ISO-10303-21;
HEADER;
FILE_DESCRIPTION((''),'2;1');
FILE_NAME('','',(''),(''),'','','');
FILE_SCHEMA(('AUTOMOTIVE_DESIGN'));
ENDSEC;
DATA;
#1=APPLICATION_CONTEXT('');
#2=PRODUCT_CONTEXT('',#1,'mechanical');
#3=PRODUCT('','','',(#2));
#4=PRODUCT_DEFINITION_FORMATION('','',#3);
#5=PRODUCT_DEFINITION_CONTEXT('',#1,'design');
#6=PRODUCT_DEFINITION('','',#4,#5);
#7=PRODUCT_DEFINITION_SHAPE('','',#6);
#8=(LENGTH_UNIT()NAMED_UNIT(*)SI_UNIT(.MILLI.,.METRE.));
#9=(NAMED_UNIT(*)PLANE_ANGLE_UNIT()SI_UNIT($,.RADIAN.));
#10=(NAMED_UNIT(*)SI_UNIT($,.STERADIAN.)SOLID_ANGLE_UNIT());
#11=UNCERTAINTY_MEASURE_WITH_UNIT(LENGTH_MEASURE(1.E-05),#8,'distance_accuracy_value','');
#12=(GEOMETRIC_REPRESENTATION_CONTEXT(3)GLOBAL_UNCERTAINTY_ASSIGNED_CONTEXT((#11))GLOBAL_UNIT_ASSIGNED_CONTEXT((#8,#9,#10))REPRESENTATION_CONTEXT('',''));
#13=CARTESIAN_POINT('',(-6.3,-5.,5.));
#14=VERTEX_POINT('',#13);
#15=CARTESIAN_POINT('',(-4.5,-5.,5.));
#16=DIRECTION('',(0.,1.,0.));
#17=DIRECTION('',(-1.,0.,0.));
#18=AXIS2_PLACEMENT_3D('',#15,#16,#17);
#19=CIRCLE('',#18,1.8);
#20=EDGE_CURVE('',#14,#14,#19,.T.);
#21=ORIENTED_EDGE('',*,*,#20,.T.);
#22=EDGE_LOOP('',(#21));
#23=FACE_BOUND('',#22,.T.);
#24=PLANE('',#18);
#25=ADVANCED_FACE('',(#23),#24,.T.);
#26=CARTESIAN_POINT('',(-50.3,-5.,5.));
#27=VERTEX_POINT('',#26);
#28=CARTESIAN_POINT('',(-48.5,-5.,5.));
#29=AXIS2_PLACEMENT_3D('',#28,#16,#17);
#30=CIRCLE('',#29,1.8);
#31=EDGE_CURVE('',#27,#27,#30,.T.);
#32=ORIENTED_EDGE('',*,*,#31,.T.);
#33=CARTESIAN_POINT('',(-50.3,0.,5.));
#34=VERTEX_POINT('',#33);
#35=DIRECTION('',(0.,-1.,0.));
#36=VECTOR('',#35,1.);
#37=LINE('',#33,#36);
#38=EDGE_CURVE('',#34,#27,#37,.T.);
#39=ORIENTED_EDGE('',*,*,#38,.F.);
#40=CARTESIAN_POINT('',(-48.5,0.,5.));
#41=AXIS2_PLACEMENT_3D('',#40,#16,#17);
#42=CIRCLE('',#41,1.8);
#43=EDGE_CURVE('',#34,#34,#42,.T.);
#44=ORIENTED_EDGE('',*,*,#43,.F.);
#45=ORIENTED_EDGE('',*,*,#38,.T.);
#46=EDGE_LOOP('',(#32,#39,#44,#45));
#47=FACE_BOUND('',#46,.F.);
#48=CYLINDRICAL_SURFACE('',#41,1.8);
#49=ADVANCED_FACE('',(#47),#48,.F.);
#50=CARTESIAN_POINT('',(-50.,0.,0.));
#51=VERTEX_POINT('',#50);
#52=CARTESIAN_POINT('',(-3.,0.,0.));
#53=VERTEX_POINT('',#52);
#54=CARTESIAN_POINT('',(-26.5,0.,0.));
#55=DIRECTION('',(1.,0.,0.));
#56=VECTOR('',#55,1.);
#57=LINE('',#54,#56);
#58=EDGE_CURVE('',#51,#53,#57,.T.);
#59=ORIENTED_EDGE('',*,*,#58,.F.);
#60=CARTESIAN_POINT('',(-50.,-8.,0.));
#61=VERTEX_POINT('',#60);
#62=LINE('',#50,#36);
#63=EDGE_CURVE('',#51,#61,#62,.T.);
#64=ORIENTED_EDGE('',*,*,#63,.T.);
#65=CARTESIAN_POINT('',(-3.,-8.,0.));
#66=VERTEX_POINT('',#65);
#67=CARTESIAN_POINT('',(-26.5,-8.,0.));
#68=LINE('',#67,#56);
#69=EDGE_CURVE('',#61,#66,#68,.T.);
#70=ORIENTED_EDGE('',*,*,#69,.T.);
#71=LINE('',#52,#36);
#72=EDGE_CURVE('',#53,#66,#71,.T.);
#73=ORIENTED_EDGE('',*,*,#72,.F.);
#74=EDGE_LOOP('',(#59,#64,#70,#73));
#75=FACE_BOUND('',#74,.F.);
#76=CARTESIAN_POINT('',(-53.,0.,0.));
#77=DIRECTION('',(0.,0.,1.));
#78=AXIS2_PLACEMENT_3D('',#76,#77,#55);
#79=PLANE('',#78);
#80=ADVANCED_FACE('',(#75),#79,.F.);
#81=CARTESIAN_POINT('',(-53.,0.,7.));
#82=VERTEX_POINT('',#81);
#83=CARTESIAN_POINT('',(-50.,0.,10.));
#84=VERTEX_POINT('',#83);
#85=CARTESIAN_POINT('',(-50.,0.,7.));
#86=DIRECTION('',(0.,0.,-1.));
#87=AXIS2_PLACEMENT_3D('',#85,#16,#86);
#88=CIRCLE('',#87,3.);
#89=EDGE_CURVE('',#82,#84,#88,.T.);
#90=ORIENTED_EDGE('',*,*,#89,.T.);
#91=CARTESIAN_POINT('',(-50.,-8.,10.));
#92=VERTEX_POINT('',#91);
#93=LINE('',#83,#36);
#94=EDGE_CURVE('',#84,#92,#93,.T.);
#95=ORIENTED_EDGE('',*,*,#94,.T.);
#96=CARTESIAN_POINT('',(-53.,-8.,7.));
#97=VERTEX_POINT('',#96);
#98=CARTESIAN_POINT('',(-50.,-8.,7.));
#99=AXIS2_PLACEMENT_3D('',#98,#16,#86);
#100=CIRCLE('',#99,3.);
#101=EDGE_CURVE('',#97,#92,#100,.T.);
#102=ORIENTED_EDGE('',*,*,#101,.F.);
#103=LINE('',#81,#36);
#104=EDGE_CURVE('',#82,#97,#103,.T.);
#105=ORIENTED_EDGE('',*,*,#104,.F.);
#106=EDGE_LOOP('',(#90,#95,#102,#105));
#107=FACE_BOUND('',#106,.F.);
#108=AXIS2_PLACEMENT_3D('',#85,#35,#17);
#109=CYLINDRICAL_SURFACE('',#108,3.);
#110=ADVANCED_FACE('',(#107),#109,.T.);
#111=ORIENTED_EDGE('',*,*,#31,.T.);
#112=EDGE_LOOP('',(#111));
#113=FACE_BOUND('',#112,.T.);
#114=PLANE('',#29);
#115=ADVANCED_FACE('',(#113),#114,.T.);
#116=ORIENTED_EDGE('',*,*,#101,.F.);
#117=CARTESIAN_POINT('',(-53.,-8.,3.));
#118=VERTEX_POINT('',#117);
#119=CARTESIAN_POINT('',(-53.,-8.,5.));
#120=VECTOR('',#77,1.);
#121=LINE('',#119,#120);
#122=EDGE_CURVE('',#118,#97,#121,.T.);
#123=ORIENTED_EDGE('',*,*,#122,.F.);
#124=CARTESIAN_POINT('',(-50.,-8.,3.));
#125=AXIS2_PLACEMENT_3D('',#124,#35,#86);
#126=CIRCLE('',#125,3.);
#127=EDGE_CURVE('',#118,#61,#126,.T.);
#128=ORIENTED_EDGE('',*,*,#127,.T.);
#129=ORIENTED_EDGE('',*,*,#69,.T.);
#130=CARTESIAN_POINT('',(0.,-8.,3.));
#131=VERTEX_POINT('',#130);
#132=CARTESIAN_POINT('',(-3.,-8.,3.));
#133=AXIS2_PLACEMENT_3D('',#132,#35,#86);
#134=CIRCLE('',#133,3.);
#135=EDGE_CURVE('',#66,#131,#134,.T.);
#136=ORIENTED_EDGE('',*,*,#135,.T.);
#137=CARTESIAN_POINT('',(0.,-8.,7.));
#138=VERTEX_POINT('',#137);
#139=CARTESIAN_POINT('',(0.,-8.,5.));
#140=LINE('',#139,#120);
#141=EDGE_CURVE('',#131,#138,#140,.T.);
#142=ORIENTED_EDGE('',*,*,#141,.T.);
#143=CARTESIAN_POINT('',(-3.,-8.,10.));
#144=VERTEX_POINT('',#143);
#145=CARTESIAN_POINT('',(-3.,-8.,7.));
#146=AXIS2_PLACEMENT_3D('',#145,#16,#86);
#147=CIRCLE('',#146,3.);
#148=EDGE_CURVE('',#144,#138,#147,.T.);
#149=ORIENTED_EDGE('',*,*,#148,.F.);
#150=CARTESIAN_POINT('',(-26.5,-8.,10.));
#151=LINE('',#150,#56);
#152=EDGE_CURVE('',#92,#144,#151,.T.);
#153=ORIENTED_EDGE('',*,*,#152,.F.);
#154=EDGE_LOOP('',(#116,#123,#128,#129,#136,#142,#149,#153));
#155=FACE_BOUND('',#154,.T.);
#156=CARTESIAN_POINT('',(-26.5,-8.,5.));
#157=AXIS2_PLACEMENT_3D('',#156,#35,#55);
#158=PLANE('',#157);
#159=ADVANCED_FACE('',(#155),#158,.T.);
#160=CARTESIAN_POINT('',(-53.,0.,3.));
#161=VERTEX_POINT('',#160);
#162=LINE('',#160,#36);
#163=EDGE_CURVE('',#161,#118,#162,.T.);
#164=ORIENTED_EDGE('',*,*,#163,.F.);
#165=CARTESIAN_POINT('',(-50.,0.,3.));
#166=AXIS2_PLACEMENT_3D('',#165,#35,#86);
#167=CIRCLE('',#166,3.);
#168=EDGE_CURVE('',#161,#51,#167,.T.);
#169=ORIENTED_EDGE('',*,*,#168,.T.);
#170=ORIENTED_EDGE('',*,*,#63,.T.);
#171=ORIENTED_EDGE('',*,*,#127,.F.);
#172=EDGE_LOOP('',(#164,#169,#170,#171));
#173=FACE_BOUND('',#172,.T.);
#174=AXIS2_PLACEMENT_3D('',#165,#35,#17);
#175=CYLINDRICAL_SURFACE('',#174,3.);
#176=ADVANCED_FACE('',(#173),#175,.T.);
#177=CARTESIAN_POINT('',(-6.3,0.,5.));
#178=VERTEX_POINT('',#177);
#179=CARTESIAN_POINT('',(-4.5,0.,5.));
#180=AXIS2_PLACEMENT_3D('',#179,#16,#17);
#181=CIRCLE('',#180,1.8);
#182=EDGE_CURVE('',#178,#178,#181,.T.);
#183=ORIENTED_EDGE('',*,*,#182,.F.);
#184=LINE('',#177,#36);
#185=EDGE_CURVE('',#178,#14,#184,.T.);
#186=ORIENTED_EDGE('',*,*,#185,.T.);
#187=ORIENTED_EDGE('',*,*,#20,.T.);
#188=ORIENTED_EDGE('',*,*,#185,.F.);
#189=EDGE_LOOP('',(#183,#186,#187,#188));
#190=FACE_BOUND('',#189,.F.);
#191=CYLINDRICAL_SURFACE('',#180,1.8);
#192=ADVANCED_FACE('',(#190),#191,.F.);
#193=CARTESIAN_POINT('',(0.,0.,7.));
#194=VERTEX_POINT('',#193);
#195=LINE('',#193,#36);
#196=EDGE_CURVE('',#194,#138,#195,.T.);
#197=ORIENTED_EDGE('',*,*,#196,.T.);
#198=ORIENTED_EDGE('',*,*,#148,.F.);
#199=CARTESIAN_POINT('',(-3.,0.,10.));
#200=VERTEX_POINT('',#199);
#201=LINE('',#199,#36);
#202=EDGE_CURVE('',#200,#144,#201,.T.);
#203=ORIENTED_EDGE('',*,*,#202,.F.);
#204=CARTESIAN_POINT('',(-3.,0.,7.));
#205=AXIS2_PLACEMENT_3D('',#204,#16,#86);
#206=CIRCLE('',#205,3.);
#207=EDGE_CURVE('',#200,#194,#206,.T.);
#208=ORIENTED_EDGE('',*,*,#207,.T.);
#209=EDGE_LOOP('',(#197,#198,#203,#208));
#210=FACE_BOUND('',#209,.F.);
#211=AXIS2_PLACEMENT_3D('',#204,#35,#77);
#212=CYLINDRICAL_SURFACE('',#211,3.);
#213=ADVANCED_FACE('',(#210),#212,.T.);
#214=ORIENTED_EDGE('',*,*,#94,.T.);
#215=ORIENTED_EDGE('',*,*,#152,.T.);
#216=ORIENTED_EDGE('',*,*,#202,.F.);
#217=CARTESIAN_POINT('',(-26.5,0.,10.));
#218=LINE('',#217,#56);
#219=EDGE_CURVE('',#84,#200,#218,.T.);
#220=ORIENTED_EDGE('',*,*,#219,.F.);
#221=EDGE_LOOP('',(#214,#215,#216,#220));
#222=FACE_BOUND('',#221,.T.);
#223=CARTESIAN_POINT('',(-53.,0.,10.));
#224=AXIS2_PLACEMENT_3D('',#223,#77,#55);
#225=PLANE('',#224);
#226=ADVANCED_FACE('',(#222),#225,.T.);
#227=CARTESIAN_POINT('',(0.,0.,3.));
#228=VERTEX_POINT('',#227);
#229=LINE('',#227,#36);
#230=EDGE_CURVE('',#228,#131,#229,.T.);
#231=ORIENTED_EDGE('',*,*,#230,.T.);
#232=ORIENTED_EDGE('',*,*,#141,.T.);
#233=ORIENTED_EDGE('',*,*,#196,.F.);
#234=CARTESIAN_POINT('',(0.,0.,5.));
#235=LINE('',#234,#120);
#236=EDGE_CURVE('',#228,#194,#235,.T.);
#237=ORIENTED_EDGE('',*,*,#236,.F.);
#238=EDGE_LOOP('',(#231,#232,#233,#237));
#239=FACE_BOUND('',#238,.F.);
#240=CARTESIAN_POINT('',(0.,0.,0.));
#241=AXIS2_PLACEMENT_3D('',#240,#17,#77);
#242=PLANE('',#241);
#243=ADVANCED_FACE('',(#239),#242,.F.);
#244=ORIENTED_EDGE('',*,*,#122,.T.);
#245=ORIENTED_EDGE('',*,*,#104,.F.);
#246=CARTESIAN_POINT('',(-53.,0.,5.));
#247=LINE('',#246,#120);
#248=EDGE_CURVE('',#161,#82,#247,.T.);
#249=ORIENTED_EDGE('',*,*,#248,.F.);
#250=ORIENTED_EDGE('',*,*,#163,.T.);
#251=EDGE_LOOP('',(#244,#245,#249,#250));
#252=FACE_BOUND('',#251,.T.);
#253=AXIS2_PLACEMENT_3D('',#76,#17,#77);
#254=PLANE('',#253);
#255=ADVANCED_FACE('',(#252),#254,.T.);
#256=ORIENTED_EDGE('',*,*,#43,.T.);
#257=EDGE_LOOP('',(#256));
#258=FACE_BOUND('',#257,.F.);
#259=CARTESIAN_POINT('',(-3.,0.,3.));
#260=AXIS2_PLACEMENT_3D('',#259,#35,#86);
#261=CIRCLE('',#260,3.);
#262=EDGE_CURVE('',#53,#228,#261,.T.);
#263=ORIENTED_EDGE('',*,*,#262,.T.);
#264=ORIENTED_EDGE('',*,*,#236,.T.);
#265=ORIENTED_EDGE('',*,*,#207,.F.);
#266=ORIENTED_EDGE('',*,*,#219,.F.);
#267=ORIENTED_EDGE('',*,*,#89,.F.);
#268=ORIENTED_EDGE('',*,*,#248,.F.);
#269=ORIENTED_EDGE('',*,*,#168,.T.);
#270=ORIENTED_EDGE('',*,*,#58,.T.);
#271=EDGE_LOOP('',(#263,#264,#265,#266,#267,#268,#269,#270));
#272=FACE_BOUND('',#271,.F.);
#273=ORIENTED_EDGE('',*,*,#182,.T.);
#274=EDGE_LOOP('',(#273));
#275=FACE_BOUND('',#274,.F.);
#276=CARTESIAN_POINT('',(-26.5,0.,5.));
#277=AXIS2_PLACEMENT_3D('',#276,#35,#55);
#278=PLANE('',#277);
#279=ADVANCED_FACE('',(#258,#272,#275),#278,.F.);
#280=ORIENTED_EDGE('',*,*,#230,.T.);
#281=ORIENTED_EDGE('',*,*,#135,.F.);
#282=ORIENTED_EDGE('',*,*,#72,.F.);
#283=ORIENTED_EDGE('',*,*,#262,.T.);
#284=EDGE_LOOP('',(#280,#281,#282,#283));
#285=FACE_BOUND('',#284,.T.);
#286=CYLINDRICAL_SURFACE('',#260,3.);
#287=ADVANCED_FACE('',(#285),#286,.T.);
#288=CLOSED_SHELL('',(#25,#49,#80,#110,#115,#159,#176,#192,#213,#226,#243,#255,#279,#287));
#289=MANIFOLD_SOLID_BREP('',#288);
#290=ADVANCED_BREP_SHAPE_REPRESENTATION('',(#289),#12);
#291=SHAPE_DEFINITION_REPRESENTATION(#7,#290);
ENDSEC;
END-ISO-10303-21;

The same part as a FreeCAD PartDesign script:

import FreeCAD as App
import Part
import Sketcher


def edges_at(feature, points):
    """Names of the edges that pass closest to the given points."""
    edges = feature.Shape.Edges
    near = lambda p: min(range(len(edges)), key=lambda i: edges[i].distToShape(Part.Vertex(*p))[0])
    return sorted({f"Edge{near(p) + 1}" for p in points})

doc = App.newDocument("Part")
params = doc.addObject("Spreadsheet::Sheet", "Params")
for row, (alias, value) in enumerate([
    ("sketch1_width", "53 mm"),
    ("sketch1_height", "10 mm"),
    ("pad1_length", "8 mm"),
    ("sketch2_diameter", "3.6 mm"),
    ("pocket1_length", "5 mm"),
    ("fillet_radius", "3 mm"),
], start=1):
    params.set(f"A{row}", alias)
    params.set(f"B{row}", "=" + value)
    params.setAlias(f"B{row}", alias)

body = doc.addObject("PartDesign::Body", "Body")

# Sketch on XZ plane
sketch1 = body.newObject("Sketcher::SketchObject", "Sketch")
sketch1.AttachmentSupport = (doc.getObject("XZ_Plane"), [""])
sketch1.MapMode = "FlatFace"
sketch1.addGeometry([
    Part.LineSegment(App.Vector(-53, 10, 0), App.Vector(-53, 0, 0)),
    Part.LineSegment(App.Vector(-53, 0, 0), App.Vector(0, 0, 0)),
    Part.LineSegment(App.Vector(0, 0, 0), App.Vector(0, 10, 0)),
    Part.LineSegment(App.Vector(0, 10, 0), App.Vector(-53, 10, 0)),
], False)
sketch1.addConstraint([
    Sketcher.Constraint("Coincident", 0, 2, 1, 1),
    Sketcher.Constraint("Coincident", 1, 2, 2, 1),
    Sketcher.Constraint("Coincident", 2, 2, 3, 1),
    Sketcher.Constraint("Coincident", 3, 2, 0, 1),
    Sketcher.Constraint("Vertical", 0),
    Sketcher.Constraint("Horizontal", 1),
    Sketcher.Constraint("Vertical", 2),
    Sketcher.Constraint("Horizontal", 3),
    Sketcher.Constraint("Coincident", 1, 2, -1, 1),
    Sketcher.Constraint("DistanceX", 1, 1, 1, 2, 53.0),
    Sketcher.Constraint("DistanceY", 0, 2, 0, 1, 10.0),
])
sketch1.setExpression("Constraints[9]", "Params.sketch1_width")
sketch1.setExpression("Constraints[10]", "Params.sketch1_height")
pad1 = body.newObject("PartDesign::Pad", "Pad")
pad1.Profile = sketch1
pad1.setExpression("Length", "Params.pad1_length")

# Sketch on XZ plane
sketch2 = body.newObject("Sketcher::SketchObject", "Sketch001")
sketch2.AttachmentSupport = (doc.getObject("XZ_Plane"), [""])
sketch2.MapMode = "FlatFace"
sketch2.addGeometry([
    Part.Circle(App.Vector(-4.5, 5, 0), App.Vector(0, 0, 1), 1.8),
    Part.Circle(App.Vector(-48.5, 5, 0), App.Vector(0, 0, 1), 1.8),
], False)
sketch2.addConstraint([
    Sketcher.Constraint("Equal", 0, 1),
    Sketcher.Constraint("Horizontal", 0, 3, 1, 3),
    Sketcher.Constraint("Diameter", 0, 3.6),
    Sketcher.Constraint("DistanceY", -1, 1, 0, 3, 5.0),
    Sketcher.Constraint("DistanceX", 1, 3, 0, 3, 44.0),
    Sketcher.Constraint("DistanceX", 0, 3, -1, 1, 4.5),
])
sketch2.setExpression("Constraints[2]", "Params.sketch2_diameter")
pocket1 = body.newObject("PartDesign::Pocket", "Pocket")
pocket1.Profile = sketch2
pocket1.setExpression("Length", "Params.pocket1_length")
pocket1.Reversed = True
doc.recompute()

fillet = body.newObject("PartDesign::Fillet", "Fillet")
fillet.Base = (pocket1, edges_at(pocket1, [
    (0, -4, 10),
    (0, -4, 0),
    (-53, -4, 10),
    (-53, -4, 0),
]))
fillet.setExpression("Radius", "Params.fillet_radius")

doc.recompute()
